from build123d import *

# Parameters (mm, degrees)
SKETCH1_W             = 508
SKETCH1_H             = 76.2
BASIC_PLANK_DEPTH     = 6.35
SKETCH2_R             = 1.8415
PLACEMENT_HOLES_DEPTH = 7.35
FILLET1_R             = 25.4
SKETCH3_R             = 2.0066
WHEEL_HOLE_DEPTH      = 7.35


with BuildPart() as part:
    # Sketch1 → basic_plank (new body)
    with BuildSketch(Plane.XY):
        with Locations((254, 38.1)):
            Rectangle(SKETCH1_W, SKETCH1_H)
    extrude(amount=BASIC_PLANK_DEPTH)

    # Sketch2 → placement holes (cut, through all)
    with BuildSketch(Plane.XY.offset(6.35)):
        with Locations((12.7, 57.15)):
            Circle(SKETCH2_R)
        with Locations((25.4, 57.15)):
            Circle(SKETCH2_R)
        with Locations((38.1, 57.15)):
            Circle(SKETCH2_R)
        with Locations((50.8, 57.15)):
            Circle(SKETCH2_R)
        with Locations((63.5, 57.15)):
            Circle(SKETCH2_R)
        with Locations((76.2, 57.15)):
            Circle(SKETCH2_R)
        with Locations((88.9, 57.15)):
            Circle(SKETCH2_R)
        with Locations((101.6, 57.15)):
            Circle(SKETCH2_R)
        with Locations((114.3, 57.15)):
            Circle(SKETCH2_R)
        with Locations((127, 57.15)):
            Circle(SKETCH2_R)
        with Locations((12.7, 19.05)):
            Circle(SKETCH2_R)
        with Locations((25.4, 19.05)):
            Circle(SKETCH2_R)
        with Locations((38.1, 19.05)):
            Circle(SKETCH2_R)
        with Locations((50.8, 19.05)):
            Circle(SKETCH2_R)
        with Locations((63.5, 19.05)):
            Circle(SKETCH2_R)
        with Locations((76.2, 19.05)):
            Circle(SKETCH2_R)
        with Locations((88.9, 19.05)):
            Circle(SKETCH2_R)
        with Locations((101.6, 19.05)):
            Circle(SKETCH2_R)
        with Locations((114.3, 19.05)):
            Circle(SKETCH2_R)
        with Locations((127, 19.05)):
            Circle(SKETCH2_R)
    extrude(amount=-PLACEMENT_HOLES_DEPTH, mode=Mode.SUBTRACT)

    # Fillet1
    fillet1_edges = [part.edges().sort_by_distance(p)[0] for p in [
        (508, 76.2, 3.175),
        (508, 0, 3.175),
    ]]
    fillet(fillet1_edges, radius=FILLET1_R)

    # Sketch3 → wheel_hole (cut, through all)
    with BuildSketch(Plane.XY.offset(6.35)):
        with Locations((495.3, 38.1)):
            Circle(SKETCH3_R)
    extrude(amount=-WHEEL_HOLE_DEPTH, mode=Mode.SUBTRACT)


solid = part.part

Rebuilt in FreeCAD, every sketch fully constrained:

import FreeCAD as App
import Part
import Sketcher
from FreeCAD import Vector
Q = App.Units.Quantity


def edges_at(feature, points):
    """Names of the edges that pass closest to the given points."""
    edges = feature.Shape.Edges
    near = lambda p: min(range(len(edges)), key=lambda i: edges[i].distToShape(Part.Vertex(*p))[0])
    return sorted({f"Edge{near(p) + 1}" for p in points})


def add_polygon(sketch, points):
    """Adds a closed chain of lines whose ends are joined by coincident constraints."""
    first, n = sketch.GeometryCount, len(points)
    for a, b in zip(points, points[1:] + points[:1]):
        sketch.addGeometry(Part.LineSegment(App.Vector(*a, 0), App.Vector(*b, 0)), False)
    for i in range(n):
        sketch.addConstraint(Sketcher.Constraint("Coincident", first + i, 2, first + (i + 1) % n, 1))

doc = App.newDocument("Part")
body = doc.addObject("PartDesign::Body", "Body")

# Sketch on XY plane
sketch1 = body.newObject("Sketcher::SketchObject", "Sketch")
sketch1.AttachmentSupport = (doc.getObject("XY_Plane"), [""])
sketch1.MapMode = "FlatFace"
add_polygon(sketch1, [(0, 76), (0, 0), (508, 0), (508, 76)])  # lines 0-3
sketch1.addConstraint([
    Sketcher.Constraint("Vertical", 0),
    Sketcher.Constraint("Horizontal", 1),
    Sketcher.Constraint("Vertical", 2),
    Sketcher.Constraint("Horizontal", 3),
    Sketcher.Constraint("Coincident", 0, 2, -1, 1),
    Sketcher.Constraint("DistanceX", 1, 1, 1, 2, Q("20 in")),
    Sketcher.Constraint("DistanceY", 0, 2, 0, 1, Q("3 in")),
])
pad1 = body.newObject("PartDesign::Pad", "Pad")
pad1.Profile = sketch1
pad1.Length = Q("0.25 in")

# Sketch on XY plane
sketch2 = body.newObject("Sketcher::SketchObject", "Sketch001")
sketch2.AttachmentSupport = (doc.getObject("XY_Plane"), [""])
sketch2.MapMode = "FlatFace"
sketch2.AttachmentOffset = App.Placement(Vector(0, 0, 0.25 * 25.4), App.Rotation())
sketch2.addGeometry([
    Part.Circle(Vector(12.7, 57.1, 0), Vector(0, 0, 1), 1.8),  # 0
    Part.Circle(Vector(25.4, 57.1, 0), Vector(0, 0, 1), 1.8),  # 1
    Part.Circle(Vector(38.1, 57.1, 0), Vector(0, 0, 1), 1.8),  # 2
    Part.Circle(Vector(50.8, 57.1, 0), Vector(0, 0, 1), 1.8),  # 3
    Part.Circle(Vector(63.5, 57.1, 0), Vector(0, 0, 1), 1.8),  # 4
    Part.Circle(Vector(76.2, 57.1, 0), Vector(0, 0, 1), 1.8),  # 5
    Part.Circle(Vector(88.9, 57.1, 0), Vector(0, 0, 1), 1.8),  # 6
    Part.Circle(Vector(101.6, 57.1, 0), Vector(0, 0, 1), 1.8),  # 7
    Part.Circle(Vector(114.3, 57.1, 0), Vector(0, 0, 1), 1.8),  # 8
    Part.Circle(Vector(127, 57.1, 0), Vector(0, 0, 1), 1.8),  # 9
    Part.Circle(Vector(12.7, 19.1, 0), Vector(0, 0, 1), 1.8),  # 10
    Part.Circle(Vector(25.4, 19.1, 0), Vector(0, 0, 1), 1.8),  # 11
    Part.Circle(Vector(38.1, 19.1, 0), Vector(0, 0, 1), 1.8),  # 12
    Part.Circle(Vector(50.8, 19.1, 0), Vector(0, 0, 1), 1.8),  # 13
    Part.Circle(Vector(63.5, 19.1, 0), Vector(0, 0, 1), 1.8),  # 14
    Part.Circle(Vector(76.2, 19.1, 0), Vector(0, 0, 1), 1.8),  # 15
    Part.Circle(Vector(88.9, 19.1, 0), Vector(0, 0, 1), 1.8),  # 16
    Part.Circle(Vector(101.6, 19.1, 0), Vector(0, 0, 1), 1.8),  # 17
    Part.Circle(Vector(114.3, 19.1, 0), Vector(0, 0, 1), 1.8),  # 18
    Part.Circle(Vector(127, 19.1, 0), Vector(0, 0, 1), 1.8),  # 19
], False)
sketch2.addConstraint([
    Sketcher.Constraint("Equal", 0, 1),
    Sketcher.Constraint("Equal", 1, 2),
    Sketcher.Constraint("Equal", 2, 3),
    Sketcher.Constraint("Equal", 3, 4),
    Sketcher.Constraint("Equal", 4, 5),
    Sketcher.Constraint("Equal", 5, 6),
    Sketcher.Constraint("Equal", 6, 7),
    Sketcher.Constraint("Equal", 7, 8),
    Sketcher.Constraint("Equal", 8, 9),
    Sketcher.Constraint("Equal", 9, 10),
    Sketcher.Constraint("Equal", 10, 11),
    Sketcher.Constraint("Equal", 11, 12),
    Sketcher.Constraint("Equal", 12, 13),
    Sketcher.Constraint("Equal", 13, 14),
    Sketcher.Constraint("Equal", 14, 15),
    Sketcher.Constraint("Equal", 15, 16),
    Sketcher.Constraint("Equal", 16, 17),
    Sketcher.Constraint("Equal", 17, 18),
    Sketcher.Constraint("Equal", 18, 19),
    Sketcher.Constraint("Horizontal", 0, 3, 1, 3),
    Sketcher.Constraint("Horizontal", 1, 3, 2, 3),
    Sketcher.Constraint("Horizontal", 2, 3, 3, 3),
    Sketcher.Constraint("Horizontal", 3, 3, 4, 3),
    Sketcher.Constraint("Horizontal", 4, 3, 5, 3),
    Sketcher.Constraint("Horizontal", 5, 3, 6, 3),
    Sketcher.Constraint("Horizontal", 6, 3, 7, 3),
    Sketcher.Constraint("Horizontal", 7, 3, 8, 3),
    Sketcher.Constraint("Horizontal", 8, 3, 9, 3),
    Sketcher.Constraint("Horizontal", 10, 3, 11, 3),
    Sketcher.Constraint("Horizontal", 11, 3, 12, 3),
    Sketcher.Constraint("Horizontal", 12, 3, 13, 3),
    Sketcher.Constraint("Horizontal", 13, 3, 14, 3),
    Sketcher.Constraint("Horizontal", 14, 3, 15, 3),
    Sketcher.Constraint("Horizontal", 15, 3, 16, 3),
    Sketcher.Constraint("Horizontal", 16, 3, 17, 3),
    Sketcher.Constraint("Horizontal", 17, 3, 18, 3),
    Sketcher.Constraint("Horizontal", 18, 3, 19, 3),
    Sketcher.Constraint("Vertical", 0, 3, 10, 3),
    Sketcher.Constraint("Vertical", 1, 3, 11, 3),
    Sketcher.Constraint("Vertical", 2, 3, 12, 3),
    Sketcher.Constraint("Vertical", 3, 3, 13, 3),
    Sketcher.Constraint("Vertical", 4, 3, 14, 3),
    Sketcher.Constraint("Vertical", 5, 3, 15, 3),
    Sketcher.Constraint("Vertical", 6, 3, 16, 3),
    Sketcher.Constraint("Vertical", 7, 3, 17, 3),
    Sketcher.Constraint("Vertical", 8, 3, 18, 3),
    Sketcher.Constraint("Vertical", 9, 3, 19, 3),
    Sketcher.Constraint("Diameter", 0, Q("0.145 in")),
    Sketcher.Constraint("DistanceX", -1, 1, 1, 3, Q("1 in")),
    Sketcher.Constraint("DistanceX", -1, 1, 3, 3, Q("2 in")),
    Sketcher.Constraint("DistanceX", -1, 1, 5, 3, Q("3 in")),
    Sketcher.Constraint("DistanceX", -1, 1, 7, 3, Q("4 in")),
    Sketcher.Constraint("DistanceX", -1, 1, 9, 3, Q("5 in")),
    Sketcher.Constraint("DistanceX", 0, 3, 2, 3, Q("1 in")),
    Sketcher.Constraint("DistanceX", 2, 3, 4, 3, Q("1 in")),
    Sketcher.Constraint("DistanceX", 4, 3, 6, 3, Q("1 in")),
    Sketcher.Constraint("DistanceX", 6, 3, 8, 3, Q("1 in")),
    Sketcher.Constraint("DistanceX", -1, 1, 0, 3, Q("0.5 in")),
    Sketcher.Constraint("DistanceY", 10, 3, 0, 3, Q("1.5 in")),
    Sketcher.Constraint("DistanceY", -1, 1, 0, 3, Q("2.25 in")),
])
pocket1 = body.newObject("PartDesign::Pocket", "Pocket")
pocket1.Profile = sketch2
pocket1.Type = "ThroughAll"
doc.recompute()

fillet = body.newObject("PartDesign::Fillet", "Fillet")
fillet.Base = (pocket1, edges_at(pocket1, [(508, 76.2, 3.175), (508, 0, 3.175)]))
fillet.Radius = Q("1 in")

# Sketch on XY plane
sketch3 = body.newObject("Sketcher::SketchObject", "Sketch002")
sketch3.AttachmentSupport = (doc.getObject("XY_Plane"), [""])
sketch3.MapMode = "FlatFace"
sketch3.AttachmentOffset = App.Placement(Vector(0, 0, 0.25 * 25.4), App.Rotation())
sketch3.addGeometry(Part.Circle(Vector(495.3, 38.1, 0), Vector(0, 0, 1), 2), False)
sketch3.addConstraint([
    Sketcher.Constraint("Diameter", 0, Q("0.158 in")),
    Sketcher.Constraint("DistanceX", -1, 1, 0, 3, Q("19.5 in")),
    Sketcher.Constraint("DistanceY", -1, 1, 0, 3, Q("1.5 in")),
])
pocket2 = body.newObject("PartDesign::Pocket", "Pocket001")
pocket2.Profile = sketch3
pocket2.Type = "ThroughAll"

doc.recompute()
